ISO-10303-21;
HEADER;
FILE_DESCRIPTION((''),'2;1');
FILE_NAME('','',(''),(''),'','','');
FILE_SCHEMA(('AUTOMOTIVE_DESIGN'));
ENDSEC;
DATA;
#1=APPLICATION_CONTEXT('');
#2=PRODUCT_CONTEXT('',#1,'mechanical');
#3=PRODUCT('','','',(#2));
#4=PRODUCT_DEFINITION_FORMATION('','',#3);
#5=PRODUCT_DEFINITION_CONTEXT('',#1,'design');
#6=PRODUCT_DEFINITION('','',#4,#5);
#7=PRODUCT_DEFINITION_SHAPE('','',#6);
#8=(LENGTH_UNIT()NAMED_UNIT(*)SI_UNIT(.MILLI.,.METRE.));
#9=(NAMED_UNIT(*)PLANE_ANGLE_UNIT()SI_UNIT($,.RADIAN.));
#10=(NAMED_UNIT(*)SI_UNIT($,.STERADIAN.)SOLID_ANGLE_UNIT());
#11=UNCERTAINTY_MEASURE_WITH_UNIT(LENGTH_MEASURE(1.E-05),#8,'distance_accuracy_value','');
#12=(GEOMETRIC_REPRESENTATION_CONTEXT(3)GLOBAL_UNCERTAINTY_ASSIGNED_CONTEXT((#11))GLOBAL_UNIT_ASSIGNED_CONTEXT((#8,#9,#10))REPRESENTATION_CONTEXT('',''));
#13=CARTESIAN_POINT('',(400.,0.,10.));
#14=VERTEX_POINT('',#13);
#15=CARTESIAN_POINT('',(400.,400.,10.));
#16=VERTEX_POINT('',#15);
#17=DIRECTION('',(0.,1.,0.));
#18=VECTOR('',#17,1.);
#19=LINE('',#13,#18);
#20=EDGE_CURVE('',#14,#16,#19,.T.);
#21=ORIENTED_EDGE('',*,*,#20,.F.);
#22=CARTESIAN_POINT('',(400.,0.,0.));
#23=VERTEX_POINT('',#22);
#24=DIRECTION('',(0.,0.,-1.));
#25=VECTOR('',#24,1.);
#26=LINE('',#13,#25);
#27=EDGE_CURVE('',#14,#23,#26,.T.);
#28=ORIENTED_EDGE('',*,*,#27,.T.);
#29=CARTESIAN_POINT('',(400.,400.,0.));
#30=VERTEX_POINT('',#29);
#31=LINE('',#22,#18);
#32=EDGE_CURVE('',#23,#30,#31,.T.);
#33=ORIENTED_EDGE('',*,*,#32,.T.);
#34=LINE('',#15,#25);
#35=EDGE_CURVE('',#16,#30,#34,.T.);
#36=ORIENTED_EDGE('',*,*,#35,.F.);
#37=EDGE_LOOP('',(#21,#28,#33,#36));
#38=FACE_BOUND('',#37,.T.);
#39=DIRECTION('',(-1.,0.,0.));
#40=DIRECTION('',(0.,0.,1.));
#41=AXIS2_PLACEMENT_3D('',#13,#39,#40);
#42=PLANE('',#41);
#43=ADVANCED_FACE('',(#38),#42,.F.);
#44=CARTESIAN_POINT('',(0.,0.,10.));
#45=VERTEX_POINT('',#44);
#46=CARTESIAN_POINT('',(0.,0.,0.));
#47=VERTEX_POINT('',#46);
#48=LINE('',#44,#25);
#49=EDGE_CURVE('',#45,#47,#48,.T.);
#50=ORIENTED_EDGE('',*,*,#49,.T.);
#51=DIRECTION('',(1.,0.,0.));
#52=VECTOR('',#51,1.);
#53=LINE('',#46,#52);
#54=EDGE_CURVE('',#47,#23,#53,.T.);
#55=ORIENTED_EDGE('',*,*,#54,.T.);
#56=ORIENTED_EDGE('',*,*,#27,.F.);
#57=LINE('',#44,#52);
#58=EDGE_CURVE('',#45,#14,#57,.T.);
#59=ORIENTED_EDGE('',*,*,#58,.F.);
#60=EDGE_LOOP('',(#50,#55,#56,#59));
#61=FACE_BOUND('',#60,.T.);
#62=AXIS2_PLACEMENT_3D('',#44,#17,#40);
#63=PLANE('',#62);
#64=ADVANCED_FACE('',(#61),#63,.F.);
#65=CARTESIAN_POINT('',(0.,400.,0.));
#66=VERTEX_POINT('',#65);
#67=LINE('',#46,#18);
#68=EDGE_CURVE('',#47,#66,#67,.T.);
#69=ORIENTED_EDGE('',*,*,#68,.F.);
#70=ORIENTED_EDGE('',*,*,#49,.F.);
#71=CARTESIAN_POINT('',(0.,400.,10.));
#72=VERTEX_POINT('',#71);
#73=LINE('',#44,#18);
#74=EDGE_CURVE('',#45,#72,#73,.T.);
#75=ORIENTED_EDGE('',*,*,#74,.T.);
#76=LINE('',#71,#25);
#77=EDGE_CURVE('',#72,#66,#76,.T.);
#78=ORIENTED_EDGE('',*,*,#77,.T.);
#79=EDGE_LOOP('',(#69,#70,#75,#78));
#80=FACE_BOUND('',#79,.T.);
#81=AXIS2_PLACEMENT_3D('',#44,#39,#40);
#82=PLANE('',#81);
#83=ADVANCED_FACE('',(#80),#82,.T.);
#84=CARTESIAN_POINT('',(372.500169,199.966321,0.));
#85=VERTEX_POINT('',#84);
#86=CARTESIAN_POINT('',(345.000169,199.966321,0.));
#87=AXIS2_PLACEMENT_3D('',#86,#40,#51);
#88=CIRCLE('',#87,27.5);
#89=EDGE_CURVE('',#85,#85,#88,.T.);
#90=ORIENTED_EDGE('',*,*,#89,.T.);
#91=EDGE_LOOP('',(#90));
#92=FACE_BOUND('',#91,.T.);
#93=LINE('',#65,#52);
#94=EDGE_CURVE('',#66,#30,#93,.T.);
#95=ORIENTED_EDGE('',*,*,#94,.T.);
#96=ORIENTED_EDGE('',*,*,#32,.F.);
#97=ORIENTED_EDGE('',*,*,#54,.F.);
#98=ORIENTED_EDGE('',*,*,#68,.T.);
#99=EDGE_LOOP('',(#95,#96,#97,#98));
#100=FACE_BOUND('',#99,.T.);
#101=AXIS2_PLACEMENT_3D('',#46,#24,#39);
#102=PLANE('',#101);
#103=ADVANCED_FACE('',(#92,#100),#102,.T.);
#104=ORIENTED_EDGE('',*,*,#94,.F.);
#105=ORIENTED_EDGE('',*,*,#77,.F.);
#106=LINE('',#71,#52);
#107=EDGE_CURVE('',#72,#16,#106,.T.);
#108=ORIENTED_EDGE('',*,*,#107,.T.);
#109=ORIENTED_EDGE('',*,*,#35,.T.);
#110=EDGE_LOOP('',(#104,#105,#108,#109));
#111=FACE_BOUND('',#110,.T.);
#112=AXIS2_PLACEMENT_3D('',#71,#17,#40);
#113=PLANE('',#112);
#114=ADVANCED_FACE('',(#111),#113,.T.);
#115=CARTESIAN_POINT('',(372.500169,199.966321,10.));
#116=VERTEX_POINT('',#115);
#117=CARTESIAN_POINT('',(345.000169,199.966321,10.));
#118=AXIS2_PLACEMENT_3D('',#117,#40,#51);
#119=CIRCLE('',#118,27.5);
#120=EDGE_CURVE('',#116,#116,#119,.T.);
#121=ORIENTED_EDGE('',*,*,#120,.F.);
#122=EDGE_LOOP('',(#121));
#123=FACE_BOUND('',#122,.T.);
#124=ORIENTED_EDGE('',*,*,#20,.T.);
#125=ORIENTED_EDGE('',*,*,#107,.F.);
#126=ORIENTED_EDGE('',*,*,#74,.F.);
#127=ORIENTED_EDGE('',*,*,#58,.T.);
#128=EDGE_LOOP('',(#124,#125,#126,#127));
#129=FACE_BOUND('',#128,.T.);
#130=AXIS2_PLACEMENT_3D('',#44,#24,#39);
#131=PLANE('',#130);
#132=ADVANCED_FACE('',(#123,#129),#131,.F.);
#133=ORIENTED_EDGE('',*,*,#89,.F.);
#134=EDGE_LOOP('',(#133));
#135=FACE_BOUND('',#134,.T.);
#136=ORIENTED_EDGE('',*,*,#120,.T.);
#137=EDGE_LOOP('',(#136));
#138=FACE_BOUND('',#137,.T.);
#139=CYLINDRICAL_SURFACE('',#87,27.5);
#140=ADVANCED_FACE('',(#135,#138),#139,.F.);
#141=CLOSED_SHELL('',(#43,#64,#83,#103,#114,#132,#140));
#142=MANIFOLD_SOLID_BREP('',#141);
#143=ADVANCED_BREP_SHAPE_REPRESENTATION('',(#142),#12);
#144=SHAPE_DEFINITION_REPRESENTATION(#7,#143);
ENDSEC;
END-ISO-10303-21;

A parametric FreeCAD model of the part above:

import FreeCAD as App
import Part
import Sketcher

V = App.Vector

doc = App.newDocument("Part")
body = doc.addObject("PartDesign::Body", "Body")

# Sketch on XY plane
sketch1 = doc.addObject("Sketcher::SketchObject", "Sketch")
body.addObject(sketch1)
sketch1.AttachmentSupport = (doc.XY_Plane, [""])
sketch1.MapMode = "FlatFace"
sketch1.addGeometry([
    Part.LineSegment(V(0, 400, 0), V(0, 0, 0)),
    Part.LineSegment(V(0, 0, 0), V(400, 0, 0)),
    Part.LineSegment(V(400, 0, 0), V(400, 400, 0)),
    Part.LineSegment(V(400, 400, 0), V(0, 400, 0)),
], False)
sketch1.addConstraint([
    Sketcher.Constraint("Coincident", 0, 2, 1, 1),
    Sketcher.Constraint("Coincident", 1, 2, 2, 1),
    Sketcher.Constraint("Coincident", 2, 2, 3, 1),
    Sketcher.Constraint("Coincident", 3, 2, 0, 1),
    Sketcher.Constraint("Vertical", 0),
    Sketcher.Constraint("Horizontal", 1),
    Sketcher.Constraint("Vertical", 2),
    Sketcher.Constraint("Horizontal", 3),
    Sketcher.Constraint("Coincident", 0, 2, -1, 1),
    Sketcher.Constraint("Equal", 3, 0),
    Sketcher.Constraint("DistanceX", 1, 1, 1, 2, 400.0),
])
pad1 = doc.addObject("PartDesign::Pad", "Pad")
body.addObject(pad1)
pad1.Profile = sketch1
pad1.Length = 10

# Sketch on XY plane
sketch2 = doc.addObject("Sketcher::SketchObject", "Sketch001")
body.addObject(sketch2)
sketch2.AttachmentSupport = (doc.XY_Plane, [""])
sketch2.MapMode = "FlatFace"
sketch2.AttachmentOffset = App.Placement(V(0, 0, 10), App.Rotation())
sketch2.addGeometry(Part.Circle(V(345, 200, 0), V(0, 0, 1), 28), False)
sketch2.addConstraint([
    Sketcher.Constraint("Diameter", 0, 55.0),
    Sketcher.Constraint("DistanceX", -1, 1, 0, 3, 345.000169),
    Sketcher.Constraint("DistanceY", -1, 1, 0, 3, 199.966321),
])
pocket1 = doc.addObject("PartDesign::Pocket", "Pocket")
body.addObject(pocket1)
pocket1.Profile = sketch2
pocket1.Type = "ThroughAll"

doc.recompute()
